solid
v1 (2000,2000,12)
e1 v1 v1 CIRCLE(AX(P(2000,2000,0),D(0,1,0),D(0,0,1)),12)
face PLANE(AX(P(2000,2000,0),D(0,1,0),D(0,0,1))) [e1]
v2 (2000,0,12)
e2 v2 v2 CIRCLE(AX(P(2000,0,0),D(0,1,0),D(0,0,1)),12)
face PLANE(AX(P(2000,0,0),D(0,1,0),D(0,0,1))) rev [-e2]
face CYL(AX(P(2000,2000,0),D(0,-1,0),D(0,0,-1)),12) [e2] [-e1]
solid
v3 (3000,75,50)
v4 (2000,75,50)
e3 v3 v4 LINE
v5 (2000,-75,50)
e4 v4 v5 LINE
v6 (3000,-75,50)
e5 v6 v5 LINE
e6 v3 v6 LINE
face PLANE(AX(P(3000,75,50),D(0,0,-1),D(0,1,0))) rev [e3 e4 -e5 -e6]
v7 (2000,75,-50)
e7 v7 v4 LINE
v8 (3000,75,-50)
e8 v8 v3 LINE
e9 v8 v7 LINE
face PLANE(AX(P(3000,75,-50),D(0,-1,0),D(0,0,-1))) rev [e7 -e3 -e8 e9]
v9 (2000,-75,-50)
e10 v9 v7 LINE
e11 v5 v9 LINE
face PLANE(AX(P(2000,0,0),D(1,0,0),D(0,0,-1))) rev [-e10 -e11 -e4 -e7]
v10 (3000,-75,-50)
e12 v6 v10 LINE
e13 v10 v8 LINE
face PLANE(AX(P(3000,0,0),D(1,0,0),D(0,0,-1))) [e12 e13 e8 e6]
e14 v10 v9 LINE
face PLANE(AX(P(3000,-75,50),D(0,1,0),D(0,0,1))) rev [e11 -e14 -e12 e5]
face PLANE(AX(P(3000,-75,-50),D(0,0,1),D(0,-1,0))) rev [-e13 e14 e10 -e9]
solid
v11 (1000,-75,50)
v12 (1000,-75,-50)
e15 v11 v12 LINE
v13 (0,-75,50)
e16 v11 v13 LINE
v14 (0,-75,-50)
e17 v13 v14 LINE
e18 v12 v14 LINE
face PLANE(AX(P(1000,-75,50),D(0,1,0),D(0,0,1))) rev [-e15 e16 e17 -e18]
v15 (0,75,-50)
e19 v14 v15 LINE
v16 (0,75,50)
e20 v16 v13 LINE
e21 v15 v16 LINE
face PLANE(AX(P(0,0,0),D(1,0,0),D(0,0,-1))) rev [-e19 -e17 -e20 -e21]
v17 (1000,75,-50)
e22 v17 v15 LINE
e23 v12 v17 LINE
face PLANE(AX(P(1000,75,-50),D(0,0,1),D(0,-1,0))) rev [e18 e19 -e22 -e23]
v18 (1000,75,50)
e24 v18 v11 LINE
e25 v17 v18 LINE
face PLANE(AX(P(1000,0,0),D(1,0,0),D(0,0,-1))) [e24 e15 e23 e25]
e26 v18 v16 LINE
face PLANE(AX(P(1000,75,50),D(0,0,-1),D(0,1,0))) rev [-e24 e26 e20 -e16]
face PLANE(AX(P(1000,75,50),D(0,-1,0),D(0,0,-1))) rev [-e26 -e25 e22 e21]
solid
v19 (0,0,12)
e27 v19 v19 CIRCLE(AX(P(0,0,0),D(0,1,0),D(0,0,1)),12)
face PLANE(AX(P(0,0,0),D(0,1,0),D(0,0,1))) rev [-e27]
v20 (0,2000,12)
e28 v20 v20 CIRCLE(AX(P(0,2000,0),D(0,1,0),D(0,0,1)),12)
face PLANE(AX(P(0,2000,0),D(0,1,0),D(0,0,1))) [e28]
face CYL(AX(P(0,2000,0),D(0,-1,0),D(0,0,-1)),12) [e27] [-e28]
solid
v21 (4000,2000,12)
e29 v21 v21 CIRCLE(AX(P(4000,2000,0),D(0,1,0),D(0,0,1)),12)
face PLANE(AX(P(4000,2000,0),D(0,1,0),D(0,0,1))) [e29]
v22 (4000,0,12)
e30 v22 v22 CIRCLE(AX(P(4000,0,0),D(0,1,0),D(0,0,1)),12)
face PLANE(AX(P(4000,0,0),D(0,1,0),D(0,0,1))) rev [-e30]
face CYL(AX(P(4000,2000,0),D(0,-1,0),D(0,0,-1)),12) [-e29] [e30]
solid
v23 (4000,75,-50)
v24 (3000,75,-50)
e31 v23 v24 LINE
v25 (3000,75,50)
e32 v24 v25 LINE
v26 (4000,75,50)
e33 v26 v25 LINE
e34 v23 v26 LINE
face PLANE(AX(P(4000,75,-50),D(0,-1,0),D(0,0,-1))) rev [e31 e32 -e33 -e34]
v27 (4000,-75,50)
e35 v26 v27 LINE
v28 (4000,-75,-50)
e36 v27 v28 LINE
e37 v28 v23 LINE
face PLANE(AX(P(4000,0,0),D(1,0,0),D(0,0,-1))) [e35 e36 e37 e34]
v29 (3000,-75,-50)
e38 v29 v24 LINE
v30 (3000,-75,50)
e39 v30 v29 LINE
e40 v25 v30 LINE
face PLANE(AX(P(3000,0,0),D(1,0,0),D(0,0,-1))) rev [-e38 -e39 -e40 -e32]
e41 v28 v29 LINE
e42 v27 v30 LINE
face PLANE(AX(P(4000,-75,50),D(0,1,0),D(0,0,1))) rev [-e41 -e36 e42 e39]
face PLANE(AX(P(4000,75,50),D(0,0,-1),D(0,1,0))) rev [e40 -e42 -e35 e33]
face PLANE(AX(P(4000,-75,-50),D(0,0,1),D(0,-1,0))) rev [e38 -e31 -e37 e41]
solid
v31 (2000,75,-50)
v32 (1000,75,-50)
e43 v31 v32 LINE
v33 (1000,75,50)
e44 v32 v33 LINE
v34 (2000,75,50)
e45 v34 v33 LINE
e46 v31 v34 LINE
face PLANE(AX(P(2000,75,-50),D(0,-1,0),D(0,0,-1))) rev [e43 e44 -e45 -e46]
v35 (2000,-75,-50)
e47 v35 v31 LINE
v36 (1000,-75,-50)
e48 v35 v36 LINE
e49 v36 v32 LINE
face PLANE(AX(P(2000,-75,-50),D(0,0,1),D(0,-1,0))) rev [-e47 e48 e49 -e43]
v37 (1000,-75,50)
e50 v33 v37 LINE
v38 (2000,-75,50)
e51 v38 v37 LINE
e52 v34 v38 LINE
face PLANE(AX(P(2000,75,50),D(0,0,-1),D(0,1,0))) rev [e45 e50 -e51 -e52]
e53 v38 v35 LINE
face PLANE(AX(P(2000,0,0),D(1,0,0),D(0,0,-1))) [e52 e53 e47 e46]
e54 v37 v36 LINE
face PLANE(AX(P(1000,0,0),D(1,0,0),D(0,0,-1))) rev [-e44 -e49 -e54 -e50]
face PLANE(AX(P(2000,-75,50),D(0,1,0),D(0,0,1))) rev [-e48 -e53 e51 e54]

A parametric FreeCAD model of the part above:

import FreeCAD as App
import Part
import Sketcher
Q = App.Units.Quantity


def add_polygon(sketch, points):
    """Adds a closed chain of lines whose ends are joined by coincident constraints."""
    first, n = sketch.GeometryCount, len(points)
    for a, b in zip(points, points[1:] + points[:1]):
        sketch.addGeometry(Part.LineSegment(App.Vector(*a, 0), App.Vector(*b, 0)), False)
    for i in range(n):
        sketch.addConstraint(Sketcher.Constraint("Coincident", first + i, 2, first + (i + 1) % n, 1))

doc = App.newDocument("Part")
body = doc.addObject("PartDesign::Body", "Body")

sketch1 = doc.addObject("Sketcher::SketchObject", "Sketch")
body.addObject(sketch1)
sketch1.AttachmentSupport = (doc.YZ_Plane, [""])
sketch1.MapMode = "FlatFace"
add_polygon(sketch1, [(75, 50), (-75, 50), (-75, -50), (75, -50)])
sketch1.addConstraint(Sketcher.Constraint("Horizontal", 0))
sketch1.addConstraint(Sketcher.Constraint("Vertical", 1))
sketch1.addConstraint(Sketcher.Constraint("Horizontal", 2))
sketch1.addConstraint(Sketcher.Constraint("Vertical", 3))
sketch1.addConstraint(Sketcher.Constraint("Symmetric", 0, 2, 2, 2, -1, 1))
sketch1.addConstraint(Sketcher.Constraint("DistanceX", 0, 2, 0, 1, Q("150 mm")))
sketch1.addConstraint(Sketcher.Constraint("DistanceY", 1, 2, 1, 1, Q("100 mm")))
pad1 = doc.addObject("PartDesign::Pad", "Pad")
body.addObject(pad1)
pad1.Profile = sketch1
pad1.Length = 1000
body2 = doc.addObject("PartDesign::Body", "Body001")

sketch2 = doc.addObject("Sketcher::SketchObject", "Sketch001")
body2.addObject(sketch2)
sketch2.AttachmentSupport = (doc.getObject("YZ_Plane001"), [""])
sketch2.MapMode = "FlatFace"
sketch2.AttachmentOffset = App.Placement(App.Vector(0, 0, 1000), App.Rotation())
add_polygon(sketch2, [(75, 50), (-75, 50), (-75, -50), (75, -50)])
sketch2.addConstraint(Sketcher.Constraint("Horizontal", 0))
sketch2.addConstraint(Sketcher.Constraint("Vertical", 1))
sketch2.addConstraint(Sketcher.Constraint("Horizontal", 2))
sketch2.addConstraint(Sketcher.Constraint("Vertical", 3))
sketch2.addConstraint(Sketcher.Constraint("Symmetric", 0, 2, 2, 2, -1, 1))
sketch2.addConstraint(Sketcher.Constraint("DistanceX", 0, 2, 0, 1, Q("150 mm")))
sketch2.addConstraint(Sketcher.Constraint("DistanceY", 1, 2, 1, 1, Q("100 mm")))
pad2 = doc.addObject("PartDesign::Pad", "Pad001")
body2.addObject(pad2)
pad2.Profile = sketch2
pad2.Length = 1000
body3 = doc.addObject("PartDesign::Body", "Body002")

sketch3 = doc.addObject("Sketcher::SketchObject", "Sketch002")
body3.addObject(sketch3)
sketch3.AttachmentSupport = (doc.getObject("YZ_Plane002"), [""])
sketch3.MapMode = "FlatFace"
sketch3.AttachmentOffset = App.Placement(App.Vector(0, 0, 2000), App.Rotation())
add_polygon(sketch3, [(75, 50), (-75, 50), (-75, -50), (75, -50)])
sketch3.addConstraint(Sketcher.Constraint("Horizontal", 0))
sketch3.addConstraint(Sketcher.Constraint("Vertical", 1))
sketch3.addConstraint(Sketcher.Constraint("Horizontal", 2))
sketch3.addConstraint(Sketcher.Constraint("Vertical", 3))
sketch3.addConstraint(Sketcher.Constraint("Symmetric", 0, 2, 2, 2, -1, 1))
sketch3.addConstraint(Sketcher.Constraint("DistanceX", 0, 2, 0, 1, Q("150 mm")))
sketch3.addConstraint(Sketcher.Constraint("DistanceY", 1, 2, 1, 1, Q("100 mm")))
pad3 = doc.addObject("PartDesign::Pad", "Pad002")
body3.addObject(pad3)
pad3.Profile = sketch3
pad3.Length = 1000
body4 = doc.addObject("PartDesign::Body", "Body003")

sketch4 = doc.addObject("Sketcher::SketchObject", "Sketch003")
body4.addObject(sketch4)
sketch4.AttachmentSupport = (doc.getObject("YZ_Plane003"), [""])
sketch4.MapMode = "FlatFace"
sketch4.AttachmentOffset = App.Placement(App.Vector(0, 0, 3000), App.Rotation())
add_polygon(sketch4, [(75, 50), (-75, 50), (-75, -50), (75, -50)])
sketch4.addConstraint(Sketcher.Constraint("Horizontal", 0))
sketch4.addConstraint(Sketcher.Constraint("Vertical", 1))
sketch4.addConstraint(Sketcher.Constraint("Horizontal", 2))
sketch4.addConstraint(Sketcher.Constraint("Vertical", 3))
sketch4.addConstraint(Sketcher.Constraint("Symmetric", 0, 2, 2, 2, -1, 1))
sketch4.addConstraint(Sketcher.Constraint("DistanceX", 0, 2, 0, 1, Q("150 mm")))
sketch4.addConstraint(Sketcher.Constraint("DistanceY", 1, 2, 1, 1, Q("100 mm")))
pad4 = doc.addObject("PartDesign::Pad", "Pad003")
body4.addObject(pad4)
pad4.Profile = sketch4
pad4.Length = 1000
body5 = doc.addObject("PartDesign::Body", "Body004")

sketch5 = doc.addObject("Sketcher::SketchObject", "Sketch004")
body5.addObject(sketch5)
sketch5.AttachmentSupport = (doc.getObject("XZ_Plane004"), [""])
sketch5.MapMode = "FlatFace"
sketch5.addGeometry(Part.Circle(App.Vector(0, 0, 0), App.Vector(0, 0, 1), 12), False)
sketch5.addConstraint(Sketcher.Constraint("Coincident", 0, 3, -1, 1))
sketch5.addConstraint(Sketcher.Constraint("Diameter", 0, Q("24 mm")))
pad5 = doc.addObject("PartDesign::Pad", "Pad004")
body5.addObject(pad5)
pad5.Profile = sketch5
pad5.Length = 2000
pad5.Reversed = True
body6 = doc.addObject("PartDesign::Body", "Body005")

sketch6 = doc.addObject("Sketcher::SketchObject", "Sketch005")
body6.addObject(sketch6)
sketch6.AttachmentSupport = (doc.getObject("XZ_Plane005"), [""])
sketch6.MapMode = "FlatFace"
sketch6.addGeometry(Part.Circle(App.Vector(2000, 0, 0), App.Vector(0, 0, 1), 12), False)
sketch6.addConstraint(Sketcher.Constraint("PointOnObject", 0, 3, -1))
sketch6.addConstraint(Sketcher.Constraint("Diameter", 0, Q("24 mm")))
sketch6.addConstraint(Sketcher.Constraint("DistanceX", -1, 1, 0, 3, Q("2000 mm")))
pad6 = doc.addObject("PartDesign::Pad", "Pad005")
body6.addObject(pad6)
pad6.Profile = sketch6
pad6.Length = 2000
pad6.Reversed = True
body7 = doc.addObject("PartDesign::Body", "Body006")

sketch7 = doc.addObject("Sketcher::SketchObject", "Sketch006")
body7.addObject(sketch7)
sketch7.AttachmentSupport = (doc.getObject("XZ_Plane006"), [""])
sketch7.MapMode = "FlatFace"
sketch7.addGeometry(Part.Circle(App.Vector(4000, 0, 0), App.Vector(0, 0, 1), 12), False)
sketch7.addConstraint(Sketcher.Constraint("PointOnObject", 0, 3, -1))
sketch7.addConstraint(Sketcher.Constraint("Diameter", 0, Q("24 mm")))
sketch7.addConstraint(Sketcher.Constraint("DistanceX", -1, 1, 0, 3, Q("4000 mm")))
pad7 = doc.addObject("PartDesign::Pad", "Pad006")
body7.addObject(pad7)
pad7.Profile = sketch7
pad7.Length = 2000
pad7.Reversed = True

doc.recompute()
